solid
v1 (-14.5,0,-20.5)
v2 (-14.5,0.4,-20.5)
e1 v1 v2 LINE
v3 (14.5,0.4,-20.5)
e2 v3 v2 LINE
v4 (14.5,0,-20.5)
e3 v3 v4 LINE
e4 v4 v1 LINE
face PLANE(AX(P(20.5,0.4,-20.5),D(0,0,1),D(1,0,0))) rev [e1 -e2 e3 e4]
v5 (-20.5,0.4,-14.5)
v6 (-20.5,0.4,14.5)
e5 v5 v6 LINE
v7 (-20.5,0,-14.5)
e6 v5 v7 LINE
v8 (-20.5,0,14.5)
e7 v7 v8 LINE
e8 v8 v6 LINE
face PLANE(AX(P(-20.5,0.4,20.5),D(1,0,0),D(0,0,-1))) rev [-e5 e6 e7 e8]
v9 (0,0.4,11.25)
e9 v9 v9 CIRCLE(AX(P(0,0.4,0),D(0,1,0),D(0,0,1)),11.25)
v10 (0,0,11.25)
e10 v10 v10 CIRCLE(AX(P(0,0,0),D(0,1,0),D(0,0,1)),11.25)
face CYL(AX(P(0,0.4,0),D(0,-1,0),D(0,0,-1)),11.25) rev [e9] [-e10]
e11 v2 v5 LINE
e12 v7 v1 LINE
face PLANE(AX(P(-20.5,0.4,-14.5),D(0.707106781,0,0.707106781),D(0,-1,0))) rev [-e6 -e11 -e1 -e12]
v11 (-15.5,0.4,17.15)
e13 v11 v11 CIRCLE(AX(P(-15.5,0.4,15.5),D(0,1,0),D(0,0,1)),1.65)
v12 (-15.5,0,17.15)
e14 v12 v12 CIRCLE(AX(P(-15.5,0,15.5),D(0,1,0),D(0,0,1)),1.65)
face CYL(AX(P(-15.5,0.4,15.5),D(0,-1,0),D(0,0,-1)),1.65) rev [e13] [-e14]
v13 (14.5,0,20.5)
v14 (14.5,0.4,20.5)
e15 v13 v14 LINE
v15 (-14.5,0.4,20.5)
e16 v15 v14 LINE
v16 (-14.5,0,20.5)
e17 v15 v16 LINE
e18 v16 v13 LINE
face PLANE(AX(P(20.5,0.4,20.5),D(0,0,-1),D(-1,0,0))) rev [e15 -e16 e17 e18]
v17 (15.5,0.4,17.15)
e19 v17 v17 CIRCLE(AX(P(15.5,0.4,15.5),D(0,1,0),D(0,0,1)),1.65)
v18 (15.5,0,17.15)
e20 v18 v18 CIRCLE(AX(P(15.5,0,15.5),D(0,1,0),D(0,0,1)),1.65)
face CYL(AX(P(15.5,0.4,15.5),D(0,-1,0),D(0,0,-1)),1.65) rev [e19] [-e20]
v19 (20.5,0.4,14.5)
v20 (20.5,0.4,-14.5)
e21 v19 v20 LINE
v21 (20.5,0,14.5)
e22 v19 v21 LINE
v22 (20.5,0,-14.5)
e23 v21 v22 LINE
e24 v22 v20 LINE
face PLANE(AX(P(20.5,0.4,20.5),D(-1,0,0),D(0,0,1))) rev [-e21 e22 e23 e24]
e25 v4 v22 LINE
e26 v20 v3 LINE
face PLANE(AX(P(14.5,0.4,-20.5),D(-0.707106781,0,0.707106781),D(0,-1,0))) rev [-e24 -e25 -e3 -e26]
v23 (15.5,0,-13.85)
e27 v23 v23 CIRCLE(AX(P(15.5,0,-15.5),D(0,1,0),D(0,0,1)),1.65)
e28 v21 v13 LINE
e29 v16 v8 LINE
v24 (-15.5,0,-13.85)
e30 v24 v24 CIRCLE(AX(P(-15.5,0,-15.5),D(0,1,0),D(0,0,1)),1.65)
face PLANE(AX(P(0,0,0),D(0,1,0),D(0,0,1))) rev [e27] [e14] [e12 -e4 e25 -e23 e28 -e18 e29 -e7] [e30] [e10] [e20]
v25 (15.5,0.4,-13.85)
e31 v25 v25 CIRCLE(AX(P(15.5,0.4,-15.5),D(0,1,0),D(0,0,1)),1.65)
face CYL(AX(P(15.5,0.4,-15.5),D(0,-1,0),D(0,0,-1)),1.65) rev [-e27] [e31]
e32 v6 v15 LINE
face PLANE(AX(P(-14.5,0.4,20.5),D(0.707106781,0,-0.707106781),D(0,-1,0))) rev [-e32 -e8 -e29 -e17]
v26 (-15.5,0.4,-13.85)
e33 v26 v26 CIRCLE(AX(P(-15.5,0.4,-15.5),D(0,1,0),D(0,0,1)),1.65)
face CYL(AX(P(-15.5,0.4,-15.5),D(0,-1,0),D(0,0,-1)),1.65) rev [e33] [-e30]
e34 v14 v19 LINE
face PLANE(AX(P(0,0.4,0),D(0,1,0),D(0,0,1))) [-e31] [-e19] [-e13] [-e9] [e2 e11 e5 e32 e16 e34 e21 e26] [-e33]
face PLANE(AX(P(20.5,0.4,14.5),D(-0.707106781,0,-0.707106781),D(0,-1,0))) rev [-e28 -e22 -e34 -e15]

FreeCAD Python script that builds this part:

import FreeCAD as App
import Part
import Sketcher
from FreeCAD import Vector
Q = App.Units.Quantity


def edges_at(feature, points):
    """Names of the edges that pass closest to the given points."""
    edges = feature.Shape.Edges
    near = lambda p: min(range(len(edges)), key=lambda i: edges[i].distToShape(Part.Vertex(*p))[0])
    return sorted({f"Edge{near(p) + 1}" for p in points})


def add_polygon(sketch, points):
    """Adds a closed chain of lines whose ends are joined by coincident constraints."""
    first, n = sketch.GeometryCount, len(points)
    for a, b in zip(points, points[1:] + points[:1]):
        sketch.addGeometry(Part.LineSegment(App.Vector(*a, 0), App.Vector(*b, 0)), False)
    for i in range(n):
        sketch.addConstraint(Sketcher.Constraint("Coincident", first + i, 2, first + (i + 1) % n, 1))

doc = App.newDocument("Part")
params = doc.addObject("Spreadsheet::Sheet", "Params")
for row, (alias, value) in enumerate([
    ("sketch1_diameter", "3.3 mm"),
    ("sketch1_diameter2", "22.5 mm"),
    ("sketch1_width", "41 mm"),
    ("pad1_length", "0.4 mm"),
    ("chamfer_size", "6 mm"),
], start=1):
    params.set(f"A{row}", alias)
    params.set(f"B{row}", "=" + value)
    params.setAlias(f"B{row}", alias)

body = doc.addObject("PartDesign::Body", "Body")

sketch1 = doc.addObject("Sketcher::SketchObject", "Sketch")
body.addObject(sketch1)
sketch1.AttachmentSupport = (doc.XZ_Plane, [""])
sketch1.MapMode = "FlatFace"
add_polygon(sketch1, [(20.5, 20.5), (20.5, -20.5), (-20.5, -20.5), (-20.5, 20.5)])
sketch1.addGeometry(Part.Circle(Vector(15.5, -15.5, 0), Vector(0, 0, 1), 1.65), False)
sketch1.addGeometry(Part.Circle(Vector(-15.5, -15.5, 0), Vector(0, 0, 1), 1.65), False)
sketch1.addGeometry(Part.Circle(Vector(15.5, 15.5, 0), Vector(0, 0, 1), 1.65), False)
sketch1.addGeometry(Part.Circle(Vector(0, 0, 0), Vector(0, 0, 1), 11.25), False)
sketch1.addGeometry(Part.Circle(Vector(-15.5, 15.5, 0), Vector(0, 0, 1), 1.65), False)
sketch1.addConstraint([
    Sketcher.Constraint("Vertical", 0),
    Sketcher.Constraint("Horizontal", 1),
    Sketcher.Constraint("Vertical", 2),
    Sketcher.Constraint("Horizontal", 3),
    Sketcher.Constraint("Coincident", 7, 3, -1, 1),
    Sketcher.Constraint("Equal", 4, 5),
    Sketcher.Constraint("Equal", 5, 6),
    Sketcher.Constraint("Equal", 6, 8),
    Sketcher.Constraint("Symmetric", 5, 3, 6, 3, -1, 1),
    Sketcher.Constraint("Symmetric", 4, 3, 8, 3, -1, 1),
    Sketcher.Constraint("Symmetric", 0, 2, 2, 2, -1, 1),
    Sketcher.Constraint("Symmetric", 4, 3, 5, 3, -2),
    Sketcher.Constraint("Equal", 3, 0),
    Sketcher.Constraint("Diameter", 4, Q("3.3 mm")),
    Sketcher.Constraint("Diameter", 7, Q("22.5 mm")),
    Sketcher.Constraint("DistanceX", 1, 2, 1, 1, Q("41 mm")),
    Sketcher.Constraint("DistanceX", 5, 3, 4, 3, Q("31 mm")),
    Sketcher.Constraint("DistanceY", 4, 3, 6, 3, Q("31 mm")),
])
sketch1.setExpression("Constraints[17]", "Params.sketch1_diameter")
sketch1.setExpression("Constraints[18]", "Params.sketch1_diameter2")
sketch1.setExpression("Constraints[19]", "Params.sketch1_width")
pad1 = doc.addObject("PartDesign::Pad", "Pad")
body.addObject(pad1)
pad1.Profile = sketch1
pad1.setExpression("Length", "Params.pad1_length")
pad1.Reversed = True
doc.recompute()

chamfer = doc.addObject("PartDesign::Chamfer", "Chamfer")
body.addObject(chamfer)
chamfer.Base = (pad1, edges_at(pad1, [
    (-20.5, 0.2, -20.5),
    (20.5, 0.2, -20.5),
    (20.5, 0.2, 20.5),
    (-20.5, 0.2, 20.5),
]))
chamfer.setExpression("Size", "Params.chamfer_size")

doc.recompute()
